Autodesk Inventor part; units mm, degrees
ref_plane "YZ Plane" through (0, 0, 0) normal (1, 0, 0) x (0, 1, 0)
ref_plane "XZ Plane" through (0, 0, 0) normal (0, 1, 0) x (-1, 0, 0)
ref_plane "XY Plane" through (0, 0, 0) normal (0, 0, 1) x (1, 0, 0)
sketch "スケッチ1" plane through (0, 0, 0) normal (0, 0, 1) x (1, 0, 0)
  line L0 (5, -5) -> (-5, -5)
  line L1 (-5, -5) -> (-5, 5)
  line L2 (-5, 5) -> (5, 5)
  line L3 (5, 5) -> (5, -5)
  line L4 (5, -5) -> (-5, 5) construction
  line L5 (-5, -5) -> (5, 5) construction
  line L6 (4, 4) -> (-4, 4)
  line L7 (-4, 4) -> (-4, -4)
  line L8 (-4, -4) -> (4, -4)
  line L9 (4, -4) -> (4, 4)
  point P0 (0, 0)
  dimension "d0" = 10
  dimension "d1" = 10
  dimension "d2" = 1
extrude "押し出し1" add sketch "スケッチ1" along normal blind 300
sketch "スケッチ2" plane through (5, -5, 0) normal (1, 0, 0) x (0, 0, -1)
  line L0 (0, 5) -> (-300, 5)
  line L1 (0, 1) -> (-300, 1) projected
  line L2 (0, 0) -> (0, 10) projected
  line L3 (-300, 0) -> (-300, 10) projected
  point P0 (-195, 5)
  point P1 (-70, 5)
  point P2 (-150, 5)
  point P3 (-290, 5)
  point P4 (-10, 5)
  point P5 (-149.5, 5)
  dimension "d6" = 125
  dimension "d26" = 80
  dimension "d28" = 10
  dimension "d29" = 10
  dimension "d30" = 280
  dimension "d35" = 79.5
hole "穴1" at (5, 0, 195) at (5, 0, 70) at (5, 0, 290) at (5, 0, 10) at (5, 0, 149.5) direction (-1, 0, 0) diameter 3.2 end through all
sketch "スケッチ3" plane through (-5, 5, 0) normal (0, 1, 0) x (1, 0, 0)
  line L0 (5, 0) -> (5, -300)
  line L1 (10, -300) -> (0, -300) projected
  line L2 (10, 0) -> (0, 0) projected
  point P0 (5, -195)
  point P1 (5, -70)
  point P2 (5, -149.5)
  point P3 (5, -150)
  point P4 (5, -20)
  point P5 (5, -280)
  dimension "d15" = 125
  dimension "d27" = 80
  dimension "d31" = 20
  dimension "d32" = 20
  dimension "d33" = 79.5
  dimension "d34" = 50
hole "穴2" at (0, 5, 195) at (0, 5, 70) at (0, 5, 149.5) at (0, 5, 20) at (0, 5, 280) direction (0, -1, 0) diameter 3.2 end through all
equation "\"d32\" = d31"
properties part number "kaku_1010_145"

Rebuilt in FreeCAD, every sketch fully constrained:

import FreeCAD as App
import Part
import Sketcher


def add_polygon(sketch, points):
    """Adds a closed chain of lines whose ends are joined by coincident constraints."""
    first, n = sketch.GeometryCount, len(points)
    for a, b in zip(points, points[1:] + points[:1]):
        sketch.addGeometry(Part.LineSegment(App.Vector(*a, 0), App.Vector(*b, 0)), False)
    for i in range(n):
        sketch.addConstraint(Sketcher.Constraint("Coincident", first + i, 2, first + (i + 1) % n, 1))

doc = App.newDocument("Part")
params = doc.addObject("Spreadsheet::Sheet", "Params")
for row, (alias, value) in enumerate([
    ("sketch1_width", "10 mm"),
    ("pad1_length", "300 mm"),
    ("sketch2_diameter", "3.2 mm"),
    ("hole_diameter", "3.2 mm"),
    ("sketch3_diameter", "3.2 mm"),
    ("hole2_diameter", "3.2 mm"),
], start=1):
    params.set(f"A{row}", alias)
    params.set(f"B{row}", "=" + value)
    params.setAlias(f"B{row}", alias)

body = doc.addObject("PartDesign::Body", "Body")

# Sketch on XY plane
sketch1 = body.newObject("Sketcher::SketchObject", "Sketch")
sketch1.AttachmentSupport = (doc.getObject("XY_Plane"), [""])
sketch1.MapMode = "FlatFace"
add_polygon(sketch1, [(-5, -5), (5, -5), (5, 5), (-5, 5)])  # lines 0-3
add_polygon(sketch1, [(-4, 4), (4, 4), (4, -4), (-4, -4)])  # lines 4-7
sketch1.addConstraint([
    Sketcher.Constraint("Horizontal", 0),
    Sketcher.Constraint("Vertical", 1),
    Sketcher.Constraint("Horizontal", 2),
    Sketcher.Constraint("Vertical", 3),
    Sketcher.Constraint("Horizontal", 4),
    Sketcher.Constraint("Vertical", 5),
    Sketcher.Constraint("Horizontal", 6),
    Sketcher.Constraint("Vertical", 7),
    Sketcher.Constraint("Symmetric", 0, 2, 2, 2, -1, 1),
    Sketcher.Constraint("Symmetric", 4, 2, 6, 2, -1, 1),
    Sketcher.Constraint("Equal", 2, 1),
    Sketcher.Constraint("Equal", 6, 5),
    Sketcher.Constraint("DistanceX", 0, 1, 0, 2, 10.0),
    Sketcher.Constraint("DistanceX", 4, 2, 1, 2, 1.0),
])
sketch1.setExpression("Constraints[20]", "Params.sketch1_width")
pad1 = body.newObject("PartDesign::Pad", "Pad")
pad1.Profile = sketch1
pad1.setExpression("Length", "Params.pad1_length")

# Sketch on YZ plane
sketch2 = body.newObject("Sketcher::SketchObject", "Sketch001")
sketch2.AttachmentSupport = (doc.getObject("YZ_Plane"), [""])
sketch2.MapMode = "FlatFace"
sketch2.AttachmentOffset = App.Placement(App.Vector(0, 0, 5), App.Rotation())
sketch2.addGeometry([
    Part.Circle(App.Vector(0, 195, 0), App.Vector(0, 0, 1), 1.6),  # 0
    Part.Circle(App.Vector(0, 70, 0), App.Vector(0, 0, 1), 1.6),  # 1
    Part.Circle(App.Vector(0, 290, 0), App.Vector(0, 0, 1), 1.6),  # 2
    Part.Circle(App.Vector(0, 10, 0), App.Vector(0, 0, 1), 1.6),  # 3
    Part.Circle(App.Vector(0, 149.5, 0), App.Vector(0, 0, 1), 1.6),  # 4
], False)
sketch2.addConstraint([
    Sketcher.Constraint("Equal", 0, 1),
    Sketcher.Constraint("Equal", 1, 2),
    Sketcher.Constraint("Equal", 2, 3),
    Sketcher.Constraint("Equal", 3, 4),
    Sketcher.Constraint("PointOnObject", 0, 3, -2),
    Sketcher.Constraint("PointOnObject", 1, 3, -2),
    Sketcher.Constraint("PointOnObject", 2, 3, -2),
    Sketcher.Constraint("PointOnObject", 3, 3, -2),
    Sketcher.Constraint("PointOnObject", 4, 3, -2),
    Sketcher.Constraint("Diameter", 0, 3.2),
    Sketcher.Constraint("DistanceY", -1, 1, 0, 3, 195.0),
    Sketcher.Constraint("DistanceY", -1, 1, 1, 3, 70.0),
    Sketcher.Constraint("DistanceY", -1, 1, 2, 3, 290.0),
    Sketcher.Constraint("DistanceY", -1, 1, 3, 3, 10.0),
    Sketcher.Constraint("DistanceY", -1, 1, 4, 3, 149.5),
])
sketch2.setExpression("Constraints[9]", "Params.sketch2_diameter")
doc.recompute()
hole = body.newObject("PartDesign::Hole", "Hole")
hole.Profile = sketch2
hole.ThreadType = "None"
hole.setExpression("Diameter", "Params.hole_diameter")
hole.DepthType = "ThroughAll"

# Sketch on XZ plane
sketch3 = body.newObject("Sketcher::SketchObject", "Sketch002")
sketch3.AttachmentSupport = (doc.getObject("XZ_Plane"), [""])
sketch3.MapMode = "FlatFace"
sketch3.AttachmentOffset = App.Placement(App.Vector(0, 0, -5), App.Rotation())
sketch3.addGeometry([
    Part.Circle(App.Vector(0, 195, 0), App.Vector(0, 0, 1), 1.6),  # 0
    Part.Circle(App.Vector(0, 70, 0), App.Vector(0, 0, 1), 1.6),  # 1
    Part.Circle(App.Vector(0, 149.5, 0), App.Vector(0, 0, 1), 1.6),  # 2
    Part.Circle(App.Vector(0, 20, 0), App.Vector(0, 0, 1), 1.6),  # 3
    Part.Circle(App.Vector(0, 280, 0), App.Vector(0, 0, 1), 1.6),  # 4
], False)
sketch3.addConstraint([
    Sketcher.Constraint("Equal", 0, 1),
    Sketcher.Constraint("Equal", 1, 2),
    Sketcher.Constraint("Equal", 2, 3),
    Sketcher.Constraint("Equal", 3, 4),
    Sketcher.Constraint("PointOnObject", 0, 3, -2),
    Sketcher.Constraint("PointOnObject", 1, 3, -2),
    Sketcher.Constraint("PointOnObject", 2, 3, -2),
    Sketcher.Constraint("PointOnObject", 3, 3, -2),
    Sketcher.Constraint("PointOnObject", 4, 3, -2),
    Sketcher.Constraint("Diameter", 0, 3.2),
    Sketcher.Constraint("DistanceY", -1, 1, 0, 3, 195.0),
    Sketcher.Constraint("DistanceY", -1, 1, 1, 3, 70.0),
    Sketcher.Constraint("DistanceY", -1, 1, 3, 3, 20.0),
    Sketcher.Constraint("DistanceY", -1, 1, 4, 3, 280.0),
    Sketcher.Constraint("DistanceY", -1, 1, 2, 3, 149.5),
])
sketch3.setExpression("Constraints[9]", "Params.sketch3_diameter")
doc.recompute()
hole2 = body.newObject("PartDesign::Hole", "Hole001")
hole2.Profile = sketch3
hole2.ThreadType = "None"
hole2.setExpression("Diameter", "Params.hole2_diameter")
hole2.DepthType = "ThroughAll"
hole2.Reversed = True

doc.recompute()
